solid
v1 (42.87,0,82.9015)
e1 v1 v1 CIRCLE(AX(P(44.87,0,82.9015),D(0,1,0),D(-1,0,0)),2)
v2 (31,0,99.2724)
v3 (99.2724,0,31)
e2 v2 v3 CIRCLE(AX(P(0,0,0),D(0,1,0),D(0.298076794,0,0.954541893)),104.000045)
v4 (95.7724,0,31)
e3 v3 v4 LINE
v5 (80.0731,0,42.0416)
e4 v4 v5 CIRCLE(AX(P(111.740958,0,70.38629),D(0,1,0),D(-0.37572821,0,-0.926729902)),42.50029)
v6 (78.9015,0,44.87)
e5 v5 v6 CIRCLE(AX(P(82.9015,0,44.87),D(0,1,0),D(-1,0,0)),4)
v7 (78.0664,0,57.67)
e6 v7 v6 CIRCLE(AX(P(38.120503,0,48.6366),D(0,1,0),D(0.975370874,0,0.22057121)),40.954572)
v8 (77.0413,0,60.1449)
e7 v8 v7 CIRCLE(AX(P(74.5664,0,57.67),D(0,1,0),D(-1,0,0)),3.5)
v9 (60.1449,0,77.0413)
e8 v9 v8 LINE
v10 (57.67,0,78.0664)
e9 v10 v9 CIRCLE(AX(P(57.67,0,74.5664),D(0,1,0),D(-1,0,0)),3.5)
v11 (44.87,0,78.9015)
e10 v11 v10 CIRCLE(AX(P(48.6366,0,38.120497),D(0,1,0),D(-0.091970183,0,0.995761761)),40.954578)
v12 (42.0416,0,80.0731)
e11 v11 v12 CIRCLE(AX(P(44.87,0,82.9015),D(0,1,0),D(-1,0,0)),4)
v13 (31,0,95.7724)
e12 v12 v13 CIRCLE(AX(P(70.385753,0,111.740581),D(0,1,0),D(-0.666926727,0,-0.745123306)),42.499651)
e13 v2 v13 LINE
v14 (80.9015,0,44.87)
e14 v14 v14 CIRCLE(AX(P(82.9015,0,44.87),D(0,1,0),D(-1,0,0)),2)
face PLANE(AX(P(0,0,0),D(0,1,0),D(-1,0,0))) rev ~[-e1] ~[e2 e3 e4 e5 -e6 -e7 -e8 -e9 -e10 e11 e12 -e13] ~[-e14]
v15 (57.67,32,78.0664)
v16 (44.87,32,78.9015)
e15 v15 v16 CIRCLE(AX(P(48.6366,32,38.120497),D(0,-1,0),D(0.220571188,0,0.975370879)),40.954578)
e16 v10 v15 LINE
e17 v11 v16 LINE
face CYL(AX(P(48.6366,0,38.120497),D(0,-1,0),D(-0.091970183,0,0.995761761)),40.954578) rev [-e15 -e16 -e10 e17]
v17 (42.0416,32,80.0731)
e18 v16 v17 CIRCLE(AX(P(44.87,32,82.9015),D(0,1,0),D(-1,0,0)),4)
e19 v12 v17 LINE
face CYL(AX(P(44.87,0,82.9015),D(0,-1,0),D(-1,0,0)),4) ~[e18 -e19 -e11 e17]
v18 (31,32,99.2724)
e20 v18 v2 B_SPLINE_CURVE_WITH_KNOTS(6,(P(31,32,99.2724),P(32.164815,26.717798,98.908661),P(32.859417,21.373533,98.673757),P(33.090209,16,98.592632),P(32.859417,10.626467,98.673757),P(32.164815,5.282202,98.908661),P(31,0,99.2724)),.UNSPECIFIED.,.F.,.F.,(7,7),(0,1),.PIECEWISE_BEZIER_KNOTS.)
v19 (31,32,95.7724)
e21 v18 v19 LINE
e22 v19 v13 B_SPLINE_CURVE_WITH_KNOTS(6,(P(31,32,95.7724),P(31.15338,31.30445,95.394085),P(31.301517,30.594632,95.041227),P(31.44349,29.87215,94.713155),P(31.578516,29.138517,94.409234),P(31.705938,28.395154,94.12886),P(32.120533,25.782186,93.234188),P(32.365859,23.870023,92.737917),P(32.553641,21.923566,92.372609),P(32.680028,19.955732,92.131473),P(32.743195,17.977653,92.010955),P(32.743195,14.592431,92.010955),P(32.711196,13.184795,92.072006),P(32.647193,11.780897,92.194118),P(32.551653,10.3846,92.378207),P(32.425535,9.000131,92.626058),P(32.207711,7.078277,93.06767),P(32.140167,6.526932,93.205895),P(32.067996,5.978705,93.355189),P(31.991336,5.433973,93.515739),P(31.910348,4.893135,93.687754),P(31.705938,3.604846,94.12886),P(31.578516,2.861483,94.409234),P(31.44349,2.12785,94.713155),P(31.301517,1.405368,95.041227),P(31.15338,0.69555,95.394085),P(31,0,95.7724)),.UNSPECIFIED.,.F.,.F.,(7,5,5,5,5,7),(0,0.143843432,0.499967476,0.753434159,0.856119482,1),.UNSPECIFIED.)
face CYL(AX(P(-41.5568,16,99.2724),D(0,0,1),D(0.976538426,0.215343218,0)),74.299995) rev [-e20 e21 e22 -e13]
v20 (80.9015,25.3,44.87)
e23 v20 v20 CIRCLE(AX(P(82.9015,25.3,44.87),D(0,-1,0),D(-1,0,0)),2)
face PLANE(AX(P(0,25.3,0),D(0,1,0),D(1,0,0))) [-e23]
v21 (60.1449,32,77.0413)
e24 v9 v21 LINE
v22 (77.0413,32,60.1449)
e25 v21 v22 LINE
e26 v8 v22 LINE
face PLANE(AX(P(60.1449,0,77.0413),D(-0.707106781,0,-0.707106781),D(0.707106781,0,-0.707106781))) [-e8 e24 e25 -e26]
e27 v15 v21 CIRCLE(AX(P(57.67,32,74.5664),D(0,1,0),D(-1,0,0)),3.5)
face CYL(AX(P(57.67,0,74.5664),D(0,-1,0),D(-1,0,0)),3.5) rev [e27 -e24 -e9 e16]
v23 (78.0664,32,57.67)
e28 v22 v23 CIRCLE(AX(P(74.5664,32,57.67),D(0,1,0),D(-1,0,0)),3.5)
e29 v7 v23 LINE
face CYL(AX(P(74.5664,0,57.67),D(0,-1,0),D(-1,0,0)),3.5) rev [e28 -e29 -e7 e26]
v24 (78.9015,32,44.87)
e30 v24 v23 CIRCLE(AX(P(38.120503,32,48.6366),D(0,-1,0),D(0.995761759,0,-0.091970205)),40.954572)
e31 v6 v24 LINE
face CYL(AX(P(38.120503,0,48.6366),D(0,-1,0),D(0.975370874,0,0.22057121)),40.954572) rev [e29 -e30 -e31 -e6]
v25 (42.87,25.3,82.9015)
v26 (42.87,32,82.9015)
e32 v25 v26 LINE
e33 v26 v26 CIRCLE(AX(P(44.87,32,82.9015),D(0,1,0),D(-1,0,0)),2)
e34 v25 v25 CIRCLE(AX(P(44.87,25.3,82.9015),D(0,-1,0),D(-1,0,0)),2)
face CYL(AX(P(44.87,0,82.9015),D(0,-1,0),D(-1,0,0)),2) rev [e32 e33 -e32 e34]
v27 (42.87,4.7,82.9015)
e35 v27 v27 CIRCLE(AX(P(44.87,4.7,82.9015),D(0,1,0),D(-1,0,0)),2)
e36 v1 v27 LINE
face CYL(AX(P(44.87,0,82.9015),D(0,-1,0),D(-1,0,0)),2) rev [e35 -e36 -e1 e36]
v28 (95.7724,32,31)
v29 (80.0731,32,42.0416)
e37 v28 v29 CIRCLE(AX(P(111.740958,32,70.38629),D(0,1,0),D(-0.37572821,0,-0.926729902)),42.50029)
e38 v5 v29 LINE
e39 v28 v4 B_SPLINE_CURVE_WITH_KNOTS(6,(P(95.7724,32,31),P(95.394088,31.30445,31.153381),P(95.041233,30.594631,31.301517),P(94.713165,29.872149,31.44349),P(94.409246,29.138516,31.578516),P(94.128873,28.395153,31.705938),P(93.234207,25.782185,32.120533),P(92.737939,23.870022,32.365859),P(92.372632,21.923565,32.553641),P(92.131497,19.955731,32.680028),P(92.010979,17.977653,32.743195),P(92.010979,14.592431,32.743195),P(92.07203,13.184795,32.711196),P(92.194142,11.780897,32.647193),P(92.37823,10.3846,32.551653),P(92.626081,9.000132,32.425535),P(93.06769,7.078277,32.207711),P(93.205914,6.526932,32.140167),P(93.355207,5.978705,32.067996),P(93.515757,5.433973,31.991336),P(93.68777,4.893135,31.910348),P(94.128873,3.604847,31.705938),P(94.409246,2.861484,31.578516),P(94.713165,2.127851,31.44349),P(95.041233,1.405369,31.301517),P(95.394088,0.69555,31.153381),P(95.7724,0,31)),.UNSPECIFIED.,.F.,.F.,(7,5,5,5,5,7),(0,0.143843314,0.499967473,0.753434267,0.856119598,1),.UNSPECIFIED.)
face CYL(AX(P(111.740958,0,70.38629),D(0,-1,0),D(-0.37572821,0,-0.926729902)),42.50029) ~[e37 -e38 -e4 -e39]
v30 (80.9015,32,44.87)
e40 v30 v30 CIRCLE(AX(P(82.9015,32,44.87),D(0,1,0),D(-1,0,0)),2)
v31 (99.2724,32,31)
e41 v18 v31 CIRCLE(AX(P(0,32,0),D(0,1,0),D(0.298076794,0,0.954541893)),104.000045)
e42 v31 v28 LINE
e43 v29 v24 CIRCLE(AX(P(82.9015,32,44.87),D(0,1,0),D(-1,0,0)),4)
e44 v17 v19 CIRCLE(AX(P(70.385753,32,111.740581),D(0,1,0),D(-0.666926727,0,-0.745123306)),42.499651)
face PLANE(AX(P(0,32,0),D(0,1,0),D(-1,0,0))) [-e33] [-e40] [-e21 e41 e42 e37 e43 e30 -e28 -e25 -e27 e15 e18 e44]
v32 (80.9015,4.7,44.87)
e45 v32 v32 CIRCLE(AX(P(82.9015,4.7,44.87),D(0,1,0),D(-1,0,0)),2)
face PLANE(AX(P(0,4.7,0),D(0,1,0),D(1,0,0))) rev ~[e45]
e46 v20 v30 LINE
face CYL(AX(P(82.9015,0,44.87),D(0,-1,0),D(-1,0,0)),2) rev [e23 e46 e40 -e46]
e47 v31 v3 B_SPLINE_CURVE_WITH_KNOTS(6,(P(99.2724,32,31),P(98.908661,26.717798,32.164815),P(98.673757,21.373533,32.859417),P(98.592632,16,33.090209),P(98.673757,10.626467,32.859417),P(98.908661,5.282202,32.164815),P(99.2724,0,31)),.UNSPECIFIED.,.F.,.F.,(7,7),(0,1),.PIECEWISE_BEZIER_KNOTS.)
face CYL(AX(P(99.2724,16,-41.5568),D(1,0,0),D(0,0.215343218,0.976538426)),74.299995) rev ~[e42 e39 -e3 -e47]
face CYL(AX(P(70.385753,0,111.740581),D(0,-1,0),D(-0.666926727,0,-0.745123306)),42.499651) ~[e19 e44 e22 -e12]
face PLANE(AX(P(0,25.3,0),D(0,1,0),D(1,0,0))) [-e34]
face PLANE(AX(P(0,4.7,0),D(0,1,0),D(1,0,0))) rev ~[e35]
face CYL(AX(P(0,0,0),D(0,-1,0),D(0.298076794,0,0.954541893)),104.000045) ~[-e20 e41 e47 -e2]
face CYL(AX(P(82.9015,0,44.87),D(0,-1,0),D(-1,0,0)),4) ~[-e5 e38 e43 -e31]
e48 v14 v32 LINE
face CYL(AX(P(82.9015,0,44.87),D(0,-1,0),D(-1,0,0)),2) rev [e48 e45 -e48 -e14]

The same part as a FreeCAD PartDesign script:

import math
import FreeCAD as App
import Part
import Sketcher
Q = App.Units.Quantity

doc = App.newDocument("Part")
params = doc.addObject("Spreadsheet::Sheet", "Params")
for row, (alias, value) in enumerate([
    ("sketch1_diameter", "4 mm"),
    ("sketch1_radius", "4 mm"),
    ("sketch1_radius2", "42.5 mm"),
    ("sketch1_radius3", "3.5 mm"),
    ("sketch1_width", "3.5 mm"),
    ("pad1_length", "32 mm"),
    ("sketch2_diameter", "4 mm"),
    ("pad2_length", "20.6 mm"),
    ("sketch3_radius", "74.3 mm"),
    ("sketch3_width", "32 mm"),
    ("pocket1_length", "20.6 mm"),
], start=1):
    params.set(f"A{row}", alias)
    params.set(f"B{row}", "=" + value)
    params.setAlias(f"B{row}", alias)

body = doc.addObject("PartDesign::Body", "Body")

# Sketch on XZ plane
sketch1 = body.newObject("Sketcher::SketchObject", "Sketch")
sketch1.AttachmentSupport = (doc.getObject("XZ_Plane"), [""])
sketch1.MapMode = "FlatFace"
sketch1.addGeometry([
    Part.LineSegment(App.Vector(31, 95.8, 0), App.Vector(31, 99.3, 0)),  # 0
    Part.ArcOfCircle(Part.Circle(App.Vector(0, 0, 0), App.Vector(0, 0, 1), 104), math.radians(17), math.radians(73)),  # 1
    Part.LineSegment(App.Vector(99.3, 31, 0), App.Vector(95.8, 31, 0)),  # 2
    Part.ArcOfCircle(Part.Circle(App.Vector(111.7, 70.4, 0), App.Vector(0, 0, 1), 42.5), math.radians(-138), math.radians(-112)),  # 3
    Part.ArcOfCircle(Part.Circle(App.Vector(82.9, 44.9, 0), App.Vector(0, 0, 1), 4), math.radians(180), math.radians(225)),  # 4
    Part.ArcOfCircle(Part.Circle(App.Vector(38.1, 48.6, 0), App.Vector(0, 0, 1), 41), math.radians(-5.28), math.radians(12.74)),  # 5
    Part.ArcOfCircle(Part.Circle(App.Vector(74.6, 57.7, 0), App.Vector(0, 0, 1), 3.5), math.radians(0), math.radians(45)),  # 6
    Part.LineSegment(App.Vector(77, 60.1, 0), App.Vector(60.1, 77, 0)),  # 7
    Part.ArcOfCircle(Part.Circle(App.Vector(57.7, 74.6, 0), App.Vector(0, 0, 1), 3.5), math.radians(45), math.radians(90)),  # 8
    Part.ArcOfCircle(Part.Circle(App.Vector(48.6, 38.1, 0), App.Vector(0, 0, 1), 41), math.radians(77.26), math.radians(95.28)),  # 9
    Part.ArcOfCircle(Part.Circle(App.Vector(44.9, 82.9, 0), App.Vector(0, 0, 1), 4), math.radians(-135), math.radians(-90)),  # 10
    Part.ArcOfCircle(Part.Circle(App.Vector(70.4, 111.7, 0), App.Vector(0, 0, 1), 42.5), math.radians(-158), math.radians(-132)),  # 11
    Part.Circle(App.Vector(44.9, 82.9, 0), App.Vector(0, 0, 1), 2),  # 12
    Part.Circle(App.Vector(82.9, 44.9, 0), App.Vector(0, 0, 1), 2),  # 13
], False)
sketch1.addConstraint([
    Sketcher.Constraint("Coincident", 0, 2, 1, 2),
    Sketcher.Constraint("Coincident", 1, 1, 2, 1),
    Sketcher.Constraint("Coincident", 2, 2, 3, 2),
    Sketcher.Constraint("Coincident", 3, 1, 4, 2),
    Sketcher.Constraint("Coincident", 4, 1, 5, 1),
    Sketcher.Constraint("Coincident", 5, 2, 6, 1),
    Sketcher.Constraint("Tangent", 6, 2, 7, 1),
    Sketcher.Constraint("Tangent", 7, 2, 8, 1),
    Sketcher.Constraint("Coincident", 8, 2, 9, 1),
    Sketcher.Constraint("Coincident", 9, 2, 10, 2),
    Sketcher.Constraint("Coincident", 10, 1, 11, 2),
    Sketcher.Constraint("Coincident", 11, 1, 0, 1),
    Sketcher.Constraint("Vertical", 0),
    Sketcher.Constraint("Horizontal", 2),
    Sketcher.Constraint("Coincident", 1, 3, -1, 1),
    Sketcher.Constraint("Coincident", 12, 3, 10, 3),
    Sketcher.Constraint("Coincident", 13, 3, 4, 3),
    Sketcher.Constraint("Equal", 6, 8),
    Sketcher.Constraint("Equal", 5, 9),
    Sketcher.Constraint("Equal", 4, 10),
    Sketcher.Constraint("Equal", 3, 11),
    Sketcher.Constraint("Equal", 12, 13),
    Sketcher.Constraint("Horizontal", 13, 3, 4, 1),
    Sketcher.Constraint("Horizontal", 6, 3, 5, 2),
    Sketcher.Constraint("Vertical", 12, 3, 9, 2),
    Sketcher.Constraint("Equal", 2, 0),
    Sketcher.Constraint("Diameter", 12, 4.0),
    Sketcher.Constraint("Radius", 4, 4.0),
    Sketcher.Constraint("Radius", 3, 42.5),
    Sketcher.Constraint("Radius", 6, 3.5),
    Sketcher.Constraint("DistanceX", 2, 2, 2, 1, 3.5),
    Sketcher.Constraint("Radius", 1, 104.0),
    Sketcher.Constraint("Angle", 7, Q("135 deg")),
    Sketcher.Constraint("DistanceX", -1, 1, 0, 2, 31.0),
    Sketcher.Constraint("DistanceY", -1, 1, 1, 1, 31.0),
    Sketcher.Constraint("Radius", 5, 40.9546),
    Sketcher.Constraint("DistanceY", 4, 3, 6, 3, 12.8),
    Sketcher.Constraint("DistanceX", 10, 3, 8, 3, 12.8),
    Sketcher.Constraint("DistanceX", 10, 3, 8, 2, 12.8),
    Sketcher.Constraint("DistanceY", -1, 1, 4, 3, 44.87),
    Sketcher.Constraint("DistanceX", -1, 1, 8, 3, 57.67),
    Sketcher.Constraint("Distance", 7, 23.895),
    Sketcher.Constraint("DistanceY", -1, 1, 3, 3, 70.386),
    Sketcher.Constraint("DistanceX", -1, 1, 11, 3, 70.386),
    Sketcher.Constraint("DistanceX", -1, 1, 3, 1, 80.073),
    Sketcher.Constraint("DistanceY", -1, 1, 10, 1, 80.073),
])
sketch1.setExpression("Constraints[26]", "Params.sketch1_diameter")
sketch1.setExpression("Constraints[27]", "Params.sketch1_radius")
sketch1.setExpression("Constraints[28]", "Params.sketch1_radius2")
sketch1.setExpression("Constraints[29]", "Params.sketch1_radius3")
sketch1.setExpression("Constraints[30]", "Params.sketch1_width")
pad1 = body.newObject("PartDesign::Pad", "Pad")
pad1.Profile = sketch1
pad1.setExpression("Length", "Params.pad1_length")
pad1.Reversed = True

# Sketch on XZ plane
sketch2 = body.newObject("Sketcher::SketchObject", "Sketch001")
sketch2.AttachmentSupport = (doc.getObject("XZ_Plane"), [""])
sketch2.MapMode = "FlatFace"
sketch2.AttachmentOffset = App.Placement(App.Vector(0, 0, -25.3), App.Rotation())
sketch2.addGeometry([
    Part.Circle(App.Vector(44.9, 82.9, 0), App.Vector(0, 0, 1), 2),
    Part.Circle(App.Vector(82.9, 44.9, 0), App.Vector(0, 0, 1), 2),
], False)
sketch2.addConstraint([
    Sketcher.Constraint("Equal", 0, 1),
    Sketcher.Constraint("Diameter", 0, 4.0),
    Sketcher.Constraint("DistanceX", -1, 1, 0, 3, 44.87),
    Sketcher.Constraint("DistanceY", -1, 1, 1, 3, 44.87),
    Sketcher.Constraint("DistanceY", -1, 1, 0, 3, 82.9015),
    Sketcher.Constraint("DistanceX", -1, 1, 1, 3, 82.9015),
])
sketch2.setExpression("Constraints[1]", "Params.sketch2_diameter")
pad2 = body.newObject("PartDesign::Pad", "Pad001")
pad2.Profile = sketch2
pad2.setExpression("Length", "Params.pad2_length")

# Sketch on YZ plane
sketch3 = body.newObject("Sketcher::SketchObject", "Sketch002")
sketch3.AttachmentSupport = (doc.getObject("YZ_Plane"), [""])
sketch3.MapMode = "FlatFace"
sketch3.AttachmentOffset = App.Placement(App.Vector(0, 0, 99.2724), App.Rotation())
sketch3.addGeometry([
    Part.LineSegment(App.Vector(0, 31, 0), App.Vector(32, 31, 0)),
    Part.ArcOfCircle(Part.Circle(App.Vector(16, -42, 0), App.Vector(0, 0, 1), 74), math.radians(78), math.radians(102)),
], False)
sketch3.addConstraint([
    Sketcher.Constraint("Coincident", 0, 1, 1, 2),
    Sketcher.Constraint("Coincident", 1, 1, 0, 2),
    Sketcher.Constraint("Horizontal", 0),
    Sketcher.Constraint("PointOnObject", 0, 1, -2),
    Sketcher.Constraint("Radius", 1, 74.3),
    Sketcher.Constraint("DistanceX", 0, 1, 0, 2, 32.0),
    Sketcher.Constraint("DistanceY", -1, 1, 0, 1, 31.0),
])
sketch3.setExpression("Constraints[4]", "Params.sketch3_radius")
sketch3.setExpression("Constraints[5]", "Params.sketch3_width")
pocket1 = body.newObject("PartDesign::Pocket", "Pocket")
pocket1.Profile = sketch3
pocket1.setExpression("Length", "Params.pocket1_length")
doc.recompute()

datumplane = body.newObject("PartDesign::Plane", "DatumPlane")
datumplane.Placement = App.Placement(App.Vector(0, 0, 0), App.Rotation(App.Vector(-0.707106781, 0, -0.707106781), App.Vector(0, -1, 0), App.Vector(-0.707106781, 0, 0.707106781), "ZXY"))
mirrored = body.newObject("PartDesign::Mirrored", "Mirrored")
mirrored.Originals = [pocket1]
mirrored.MirrorPlane = (datumplane, [""])
body.Tip = mirrored

doc.recompute()
